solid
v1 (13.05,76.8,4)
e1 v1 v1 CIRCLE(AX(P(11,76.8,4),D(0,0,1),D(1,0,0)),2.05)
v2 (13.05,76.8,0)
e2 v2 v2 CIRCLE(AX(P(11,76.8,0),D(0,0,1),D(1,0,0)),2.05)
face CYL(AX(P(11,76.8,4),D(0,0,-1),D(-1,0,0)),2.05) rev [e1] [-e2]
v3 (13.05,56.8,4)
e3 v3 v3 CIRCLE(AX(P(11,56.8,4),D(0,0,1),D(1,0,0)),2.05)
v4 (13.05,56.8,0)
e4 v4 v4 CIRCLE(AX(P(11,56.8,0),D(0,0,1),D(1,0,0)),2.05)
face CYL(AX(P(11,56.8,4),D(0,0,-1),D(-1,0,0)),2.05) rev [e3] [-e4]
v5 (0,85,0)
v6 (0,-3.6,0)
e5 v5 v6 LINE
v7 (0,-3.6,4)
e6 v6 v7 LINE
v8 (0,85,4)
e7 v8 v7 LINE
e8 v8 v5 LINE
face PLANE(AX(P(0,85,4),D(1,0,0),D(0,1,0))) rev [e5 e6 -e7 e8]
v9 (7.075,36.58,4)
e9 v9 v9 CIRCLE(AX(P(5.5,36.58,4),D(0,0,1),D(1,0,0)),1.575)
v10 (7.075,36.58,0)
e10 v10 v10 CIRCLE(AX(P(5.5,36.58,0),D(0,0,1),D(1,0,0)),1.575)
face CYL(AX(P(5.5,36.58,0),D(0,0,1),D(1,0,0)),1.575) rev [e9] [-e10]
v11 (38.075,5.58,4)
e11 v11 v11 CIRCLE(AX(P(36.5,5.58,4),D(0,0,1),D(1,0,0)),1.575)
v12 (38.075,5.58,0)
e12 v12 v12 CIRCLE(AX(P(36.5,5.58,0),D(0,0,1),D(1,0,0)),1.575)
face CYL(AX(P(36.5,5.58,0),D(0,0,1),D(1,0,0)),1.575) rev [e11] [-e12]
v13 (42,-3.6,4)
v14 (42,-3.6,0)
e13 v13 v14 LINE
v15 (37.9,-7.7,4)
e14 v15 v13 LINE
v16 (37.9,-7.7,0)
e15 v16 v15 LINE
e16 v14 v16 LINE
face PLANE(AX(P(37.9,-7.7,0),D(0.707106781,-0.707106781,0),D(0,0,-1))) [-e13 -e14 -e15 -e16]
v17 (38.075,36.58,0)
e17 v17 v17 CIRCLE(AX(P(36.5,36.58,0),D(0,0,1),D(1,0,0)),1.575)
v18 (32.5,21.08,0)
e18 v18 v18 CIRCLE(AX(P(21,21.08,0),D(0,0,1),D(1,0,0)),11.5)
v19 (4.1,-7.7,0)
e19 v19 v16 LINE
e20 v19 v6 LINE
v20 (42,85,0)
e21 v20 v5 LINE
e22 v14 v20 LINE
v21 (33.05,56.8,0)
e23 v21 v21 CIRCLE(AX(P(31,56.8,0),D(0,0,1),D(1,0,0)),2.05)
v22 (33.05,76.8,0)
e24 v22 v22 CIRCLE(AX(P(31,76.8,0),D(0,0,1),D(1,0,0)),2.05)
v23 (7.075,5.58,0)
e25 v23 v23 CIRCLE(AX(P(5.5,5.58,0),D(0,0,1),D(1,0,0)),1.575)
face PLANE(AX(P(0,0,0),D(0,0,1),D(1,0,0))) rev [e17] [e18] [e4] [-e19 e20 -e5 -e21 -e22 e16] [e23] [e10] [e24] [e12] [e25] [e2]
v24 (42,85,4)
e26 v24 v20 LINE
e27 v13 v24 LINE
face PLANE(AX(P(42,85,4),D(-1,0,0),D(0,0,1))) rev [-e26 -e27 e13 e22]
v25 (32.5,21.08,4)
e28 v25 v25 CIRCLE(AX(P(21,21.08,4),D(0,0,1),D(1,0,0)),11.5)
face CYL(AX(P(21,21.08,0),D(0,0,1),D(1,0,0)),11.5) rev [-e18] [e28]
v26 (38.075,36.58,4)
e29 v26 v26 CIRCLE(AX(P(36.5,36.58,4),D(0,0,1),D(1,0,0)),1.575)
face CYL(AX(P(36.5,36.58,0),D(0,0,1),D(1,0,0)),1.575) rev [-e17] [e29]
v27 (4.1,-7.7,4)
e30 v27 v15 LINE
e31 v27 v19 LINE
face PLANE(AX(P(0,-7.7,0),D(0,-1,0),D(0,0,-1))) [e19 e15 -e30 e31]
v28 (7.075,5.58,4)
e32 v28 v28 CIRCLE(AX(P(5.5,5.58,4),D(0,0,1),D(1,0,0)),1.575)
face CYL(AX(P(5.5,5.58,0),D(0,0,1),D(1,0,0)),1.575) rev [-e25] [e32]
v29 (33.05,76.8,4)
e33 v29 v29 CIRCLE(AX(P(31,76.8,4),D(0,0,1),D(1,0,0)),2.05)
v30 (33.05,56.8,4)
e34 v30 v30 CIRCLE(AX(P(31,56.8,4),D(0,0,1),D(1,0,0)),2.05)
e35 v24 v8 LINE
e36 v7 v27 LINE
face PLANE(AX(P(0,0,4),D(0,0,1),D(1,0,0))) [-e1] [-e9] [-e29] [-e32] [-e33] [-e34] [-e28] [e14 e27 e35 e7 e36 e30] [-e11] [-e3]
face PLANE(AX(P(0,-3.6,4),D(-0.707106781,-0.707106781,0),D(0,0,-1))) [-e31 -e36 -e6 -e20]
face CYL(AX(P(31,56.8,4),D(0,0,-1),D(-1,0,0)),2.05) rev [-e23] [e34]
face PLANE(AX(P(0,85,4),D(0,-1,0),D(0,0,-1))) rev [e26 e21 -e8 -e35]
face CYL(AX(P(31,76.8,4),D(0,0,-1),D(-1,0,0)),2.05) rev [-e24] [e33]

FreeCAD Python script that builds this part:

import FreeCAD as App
import Part
import Sketcher

V = App.Vector


def edges_at(feature, points):
    """Names of the edges that pass closest to the given points."""
    edges = feature.Shape.Edges
    near = lambda p: min(range(len(edges)), key=lambda i: edges[i].distToShape(Part.Vertex(*p))[0])
    return sorted({f"Edge{near(p) + 1}" for p in points})


def add_polygon(sketch, points):
    """Adds a closed chain of lines whose ends are joined by coincident constraints."""
    first, n = sketch.GeometryCount, len(points)
    for a, b in zip(points, points[1:] + points[:1]):
        sketch.addGeometry(Part.LineSegment(App.Vector(*a, 0), App.Vector(*b, 0)), False)
    for i in range(n):
        sketch.addConstraint(Sketcher.Constraint("Coincident", first + i, 2, first + (i + 1) % n, 1))

doc = App.newDocument("Part")
body = doc.addObject("PartDesign::Body", "Body")

sketch1 = doc.addObject("Sketcher::SketchObject", "Sketch")
body.addObject(sketch1)
sketch1.AttachmentSupport = (doc.XY_Plane, [""])
sketch1.MapMode = "FlatFace"
add_polygon(sketch1, [(0, 85), (0, 0), (42, 0), (42, 85)])
sketch1.addGeometry(Part.Circle(V(21, 21.1, 0), V(0, 0, 1), 2.5), False)
sketch1.addGeometry(Part.Circle(V(11, 56.8, 0), V(0, 0, 1), 2), False)
sketch1.addGeometry(Part.Circle(V(11, 76.8, 0), V(0, 0, 1), 2), False)
sketch1.addGeometry(Part.Circle(V(31, 56.8, 0), V(0, 0, 1), 2), False)
sketch1.addGeometry(Part.Circle(V(31, 76.8, 0), V(0, 0, 1), 2), False)
sketch1.addConstraint([
    Sketcher.Constraint("Vertical", 0),
    Sketcher.Constraint("Horizontal", 1),
    Sketcher.Constraint("Vertical", 2),
    Sketcher.Constraint("Horizontal", 3),
    Sketcher.Constraint("Coincident", 0, 2, -1, 1),
    Sketcher.Constraint("Equal", 5, 6),
    Sketcher.Constraint("Equal", 6, 7),
    Sketcher.Constraint("Equal", 7, 8),
    Sketcher.Constraint("Horizontal", 5, 3, 7, 3),
    Sketcher.Constraint("Horizontal", 6, 3, 8, 3),
    Sketcher.Constraint("Vertical", 5, 3, 6, 3),
    Sketcher.Constraint("Vertical", 7, 3, 8, 3),
    Sketcher.Constraint("Diameter", 4, 5.1),
    Sketcher.Constraint("Diameter", 5, 4.1),
    Sketcher.Constraint("DistanceX", 1, 1, 1, 2, 42.0),
    Sketcher.Constraint("DistanceY", 0, 2, 0, 1, 85.0),
    Sketcher.Constraint("DistanceX", -1, 1, 4, 3, 21.0),
    Sketcher.Constraint("DistanceX", -1, 1, 5, 3, 11.0),
    Sketcher.Constraint("DistanceX", -1, 1, 7, 3, 31.0),
    Sketcher.Constraint("DistanceY", 5, 3, 6, 3, 20.0),
    Sketcher.Constraint("DistanceY", -1, 1, 5, 3, 56.8),
    Sketcher.Constraint("DistanceY", -1, 1, 4, 3, 21.08),
])
pad1 = doc.addObject("PartDesign::Pad", "Pad")
body.addObject(pad1)
pad1.Profile = sketch1
pad1.Length = 4

sketch2 = doc.addObject("Sketcher::SketchObject", "Sketch001")
body.addObject(sketch2)
sketch2.AttachmentSupport = (doc.XY_Plane, [""])
sketch2.MapMode = "FlatFace"
sketch2.AttachmentOffset = App.Placement(V(0, 0, 4), App.Rotation())
sketch2.addGeometry([
    Part.Circle(V(21, 21.1, 0), V(0, 0, 1), 11.5),
    Part.Circle(V(5.5, 36.6, 0), V(0, 0, 1), 1.6),
    Part.Circle(V(36.5, 36.6, 0), V(0, 0, 1), 1.6),
    Part.Circle(V(36.5, 5.6, 0), V(0, 0, 1), 1.6),
    Part.Circle(V(5.5, 5.6, 0), V(0, 0, 1), 1.6),
], False)
sketch2.addConstraint([
    Sketcher.Constraint("Equal", 1, 2),
    Sketcher.Constraint("Equal", 2, 3),
    Sketcher.Constraint("Equal", 3, 4),
    Sketcher.Constraint("Horizontal", 1, 3, 2, 3),
    Sketcher.Constraint("Horizontal", 3, 3, 4, 3),
    Sketcher.Constraint("Vertical", 2, 3, 3, 3),
    Sketcher.Constraint("Vertical", 1, 3, 4, 3),
    Sketcher.Constraint("Diameter", 0, 23.0),
    Sketcher.Constraint("Diameter", 1, 3.15),
    Sketcher.Constraint("DistanceX", -1, 1, 0, 3, 21.0),
    Sketcher.Constraint("DistanceX", 1, 3, 2, 3, 31.0),
    Sketcher.Constraint("DistanceY", 3, 3, 2, 3, 31.0),
    Sketcher.Constraint("DistanceX", -1, 1, 1, 3, 5.5),
    Sketcher.Constraint("DistanceY", 0, 3, 1, 3, 15.5),
    Sketcher.Constraint("DistanceY", -1, 1, 0, 3, 21.08),
])
pocket1 = doc.addObject("PartDesign::Pocket", "Pocket")
body.addObject(pocket1)
pocket1.Profile = sketch2
pocket1.Type = "ThroughAll"

sketch3 = doc.addObject("Sketcher::SketchObject", "Sketch002")
body.addObject(sketch3)
sketch3.AttachmentSupport = (doc.XY_Plane, [""])
sketch3.MapMode = "FlatFace"
sketch3.AttachmentOffset = App.Placement(V(0, 0, 4), App.Rotation())
add_polygon(sketch3, [(0, 0), (0, -8), (42, -8), (42, 0)])
sketch3.addConstraint([
    Sketcher.Constraint("Vertical", 0),
    Sketcher.Constraint("Horizontal", 1),
    Sketcher.Constraint("Vertical", 2),
    Sketcher.Constraint("Horizontal", 3),
    Sketcher.Constraint("Coincident", 3, 2, -1, 1),
    Sketcher.Constraint("DistanceX", 1, 1, 1, 2, 42.0),
    Sketcher.Constraint("DistanceY", 0, 2, 0, 1, 7.7),
])
pad2 = doc.addObject("PartDesign::Pad", "Pad001")
body.addObject(pad2)
pad2.Profile = sketch3
pad2.Length = 4
pad2.Reversed = True
doc.recompute()

chamfer = doc.addObject("PartDesign::Chamfer", "Chamfer")
body.addObject(chamfer)
chamfer.Base = (pad2, edges_at(pad2, [(0, -7.7, 2), (42, -7.7, 2)]))
chamfer.Size = 4.1

doc.recompute()
